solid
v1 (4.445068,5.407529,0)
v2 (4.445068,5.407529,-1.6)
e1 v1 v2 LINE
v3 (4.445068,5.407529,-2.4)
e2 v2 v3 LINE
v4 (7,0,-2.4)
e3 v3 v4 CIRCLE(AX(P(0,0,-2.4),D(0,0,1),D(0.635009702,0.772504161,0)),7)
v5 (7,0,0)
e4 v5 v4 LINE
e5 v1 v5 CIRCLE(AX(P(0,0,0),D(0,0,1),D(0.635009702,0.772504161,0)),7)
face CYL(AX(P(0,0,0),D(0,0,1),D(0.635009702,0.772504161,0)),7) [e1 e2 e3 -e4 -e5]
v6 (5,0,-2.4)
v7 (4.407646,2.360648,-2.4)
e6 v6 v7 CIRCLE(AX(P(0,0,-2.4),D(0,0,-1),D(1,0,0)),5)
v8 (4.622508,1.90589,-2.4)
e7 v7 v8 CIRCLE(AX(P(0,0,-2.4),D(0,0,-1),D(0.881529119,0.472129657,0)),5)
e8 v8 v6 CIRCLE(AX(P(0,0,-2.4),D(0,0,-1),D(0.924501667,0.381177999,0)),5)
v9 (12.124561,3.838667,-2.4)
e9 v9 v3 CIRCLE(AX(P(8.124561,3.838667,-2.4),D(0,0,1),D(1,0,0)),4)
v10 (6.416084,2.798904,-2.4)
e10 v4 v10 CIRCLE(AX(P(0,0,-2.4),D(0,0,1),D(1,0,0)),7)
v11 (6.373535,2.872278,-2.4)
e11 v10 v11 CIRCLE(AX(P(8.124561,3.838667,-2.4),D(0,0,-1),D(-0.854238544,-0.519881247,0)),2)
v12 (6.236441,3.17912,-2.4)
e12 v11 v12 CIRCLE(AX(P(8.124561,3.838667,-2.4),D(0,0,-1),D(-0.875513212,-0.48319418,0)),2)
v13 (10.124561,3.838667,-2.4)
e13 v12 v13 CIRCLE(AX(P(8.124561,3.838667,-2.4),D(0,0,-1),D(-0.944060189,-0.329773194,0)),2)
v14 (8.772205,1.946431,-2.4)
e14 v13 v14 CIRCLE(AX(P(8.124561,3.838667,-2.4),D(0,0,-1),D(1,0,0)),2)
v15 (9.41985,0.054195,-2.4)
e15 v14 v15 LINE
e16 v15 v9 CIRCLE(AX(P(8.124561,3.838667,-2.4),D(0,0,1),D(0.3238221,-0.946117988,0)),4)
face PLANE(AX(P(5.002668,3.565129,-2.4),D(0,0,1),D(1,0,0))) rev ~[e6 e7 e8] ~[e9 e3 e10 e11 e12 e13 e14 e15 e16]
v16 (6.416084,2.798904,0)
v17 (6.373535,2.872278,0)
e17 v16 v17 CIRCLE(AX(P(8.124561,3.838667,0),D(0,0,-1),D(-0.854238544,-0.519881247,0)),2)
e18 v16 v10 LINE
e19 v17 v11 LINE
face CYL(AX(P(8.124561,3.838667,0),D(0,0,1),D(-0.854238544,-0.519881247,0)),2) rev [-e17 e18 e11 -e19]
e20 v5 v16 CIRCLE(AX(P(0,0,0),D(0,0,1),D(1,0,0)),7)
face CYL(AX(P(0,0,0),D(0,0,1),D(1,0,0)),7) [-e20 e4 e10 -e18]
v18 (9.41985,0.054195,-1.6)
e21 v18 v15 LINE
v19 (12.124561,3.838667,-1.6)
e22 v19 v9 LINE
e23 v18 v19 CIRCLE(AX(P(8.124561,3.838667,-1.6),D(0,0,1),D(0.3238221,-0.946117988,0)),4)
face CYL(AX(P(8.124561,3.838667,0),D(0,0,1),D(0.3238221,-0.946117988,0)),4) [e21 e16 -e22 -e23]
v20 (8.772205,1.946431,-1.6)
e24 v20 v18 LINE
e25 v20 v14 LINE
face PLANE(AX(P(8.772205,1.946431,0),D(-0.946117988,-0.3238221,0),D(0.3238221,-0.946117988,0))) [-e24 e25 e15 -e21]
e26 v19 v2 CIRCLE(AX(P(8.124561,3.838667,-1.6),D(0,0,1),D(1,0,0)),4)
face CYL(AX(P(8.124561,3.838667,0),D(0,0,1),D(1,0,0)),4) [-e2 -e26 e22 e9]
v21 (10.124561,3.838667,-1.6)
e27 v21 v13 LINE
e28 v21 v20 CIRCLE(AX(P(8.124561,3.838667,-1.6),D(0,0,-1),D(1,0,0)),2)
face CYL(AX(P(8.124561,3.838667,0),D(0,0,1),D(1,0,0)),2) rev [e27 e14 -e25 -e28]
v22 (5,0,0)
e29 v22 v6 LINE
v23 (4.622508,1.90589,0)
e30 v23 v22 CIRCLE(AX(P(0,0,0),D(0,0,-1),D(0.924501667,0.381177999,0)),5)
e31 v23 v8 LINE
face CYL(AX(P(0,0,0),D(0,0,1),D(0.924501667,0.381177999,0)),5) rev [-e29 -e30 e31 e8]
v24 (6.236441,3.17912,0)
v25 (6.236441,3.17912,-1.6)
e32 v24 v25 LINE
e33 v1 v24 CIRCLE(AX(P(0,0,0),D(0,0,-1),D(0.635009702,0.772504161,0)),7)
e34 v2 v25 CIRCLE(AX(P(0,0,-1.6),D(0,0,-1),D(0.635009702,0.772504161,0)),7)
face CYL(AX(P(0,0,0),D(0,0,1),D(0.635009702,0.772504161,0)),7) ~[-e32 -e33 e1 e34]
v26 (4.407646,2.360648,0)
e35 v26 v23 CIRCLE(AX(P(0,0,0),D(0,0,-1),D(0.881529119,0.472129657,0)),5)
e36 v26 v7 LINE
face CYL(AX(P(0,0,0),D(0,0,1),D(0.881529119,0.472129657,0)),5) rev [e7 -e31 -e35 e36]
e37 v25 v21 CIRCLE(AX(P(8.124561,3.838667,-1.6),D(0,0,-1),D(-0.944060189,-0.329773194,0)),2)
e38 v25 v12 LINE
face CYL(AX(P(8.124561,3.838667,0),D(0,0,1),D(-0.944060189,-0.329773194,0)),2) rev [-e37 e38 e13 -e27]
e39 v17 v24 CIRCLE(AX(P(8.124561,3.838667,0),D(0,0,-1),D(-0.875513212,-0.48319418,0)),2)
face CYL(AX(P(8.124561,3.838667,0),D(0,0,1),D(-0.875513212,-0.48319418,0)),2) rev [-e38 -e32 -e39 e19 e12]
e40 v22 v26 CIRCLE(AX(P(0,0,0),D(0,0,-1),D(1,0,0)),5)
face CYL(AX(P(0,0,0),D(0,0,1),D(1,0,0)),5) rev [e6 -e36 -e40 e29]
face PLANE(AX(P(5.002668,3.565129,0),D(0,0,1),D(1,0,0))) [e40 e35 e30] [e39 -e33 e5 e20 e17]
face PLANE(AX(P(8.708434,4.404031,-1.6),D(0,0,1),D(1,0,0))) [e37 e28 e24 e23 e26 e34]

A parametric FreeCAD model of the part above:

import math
import FreeCAD as App
import Part
import Sketcher

V = App.Vector
Q = App.Units.Quantity

doc = App.newDocument("Part")
body = doc.addObject("PartDesign::Body", "Body")

sketch1 = doc.addObject("Sketcher::SketchObject", "Sketch")
body.addObject(sketch1)
sketch1.AttachmentSupport = (doc.XY_Plane, [""])
sketch1.MapMode = "FlatFace"
sketch1.addGeometry([
    Part.ArcOfCircle(Part.Circle(V(0, 0, 0), V(0, 0, 1), 7), math.radians(50.579296), math.radians(360)),
    Part.ArcOfCircle(Part.Circle(V(0, 0, 0), V(0, 0, 1), 7), math.radians(0), math.radians(23.568393)),
    Part.ArcOfCircle(Part.Circle(V(8.124561, 3.838667, 0), V(0, 0, 1), 2), math.radians(-151.105772), math.radians(-148.675714)),
    Part.ArcOfCircle(Part.Circle(V(8.124561, 3.838667, 0), V(0, 0, 1), 2), math.radians(-160.74499), math.radians(-151.105772)),
    Part.ArcOfCircle(Part.Circle(V(8.124561, 3.838667, 0), V(0, 0, 1), 2), math.radians(0), math.radians(199.25501)),
    Part.ArcOfCircle(Part.Circle(V(8.124561, 3.838667, 0), V(0, 0, 1), 2), math.radians(-71.105772), math.radians(0)),
    Part.LineSegment(V(8.772205, 1.946431, 0), V(9.41985, 0.054195, 0)),
    Part.ArcOfCircle(Part.Circle(V(8.124561, 3.838667, 0), V(0, 0, 1), 4), math.radians(-71.105772), math.radians(0)),
    Part.ArcOfCircle(Part.Circle(V(8.124561, 3.838667, 0), V(0, 0, 1), 4), math.radians(0), math.radians(156.907569)),
    Part.ArcOfCircle(Part.Circle(V(0, 0, 0), V(0, 0, 1), 5), math.radians(22.40667), math.radians(28.172626)),
    Part.ArcOfCircle(Part.Circle(V(0, 0, 0), V(0, 0, 1), 5), math.radians(0), math.radians(22.40667)),
    Part.ArcOfCircle(Part.Circle(V(0, 0, 0), V(0, 0, 1), 5), math.radians(28.172626), math.radians(360)),
], False)
sketch1.addConstraint([
    Sketcher.Constraint("Tangent", 0, 2, 1, 1),
    Sketcher.Constraint("Coincident", 1, 2, 2, 2),
    Sketcher.Constraint("Tangent", 2, 1, 3, 2),
    Sketcher.Constraint("Tangent", 3, 1, 4, 2),
    Sketcher.Constraint("Tangent", 4, 1, 5, 2),
    Sketcher.Constraint("Coincident", 5, 1, 6, 1),
    Sketcher.Constraint("Coincident", 6, 2, 7, 1),
    Sketcher.Constraint("Tangent", 7, 2, 8, 1),
    Sketcher.Constraint("Coincident", 8, 2, 0, 1),
    Sketcher.Constraint("Tangent", 9, 1, 10, 2),
    Sketcher.Constraint("Tangent", 10, 1, 11, 2),
    Sketcher.Constraint("Tangent", 11, 1, 9, 2),
    Sketcher.Constraint("Coincident", 0, 3, -1, 1),
    Sketcher.Constraint("Coincident", 9, 3, -1, 1),
    Sketcher.Constraint("Coincident", 4, 3, 2, 3),
    Sketcher.Constraint("Coincident", 7, 3, 2, 3),
    Sketcher.Constraint("Equal", 0, 1),
    Sketcher.Constraint("Equal", 4, 5),
    Sketcher.Constraint("Equal", 7, 8),
    Sketcher.Constraint("PointOnObject", 0, 2, -1),
    Sketcher.Constraint("PointOnObject", 10, 1, -1),
    Sketcher.Constraint("Horizontal", 8, 3, 4, 1),
    Sketcher.Constraint("Horizontal", 4, 1, 7, 2),
    Sketcher.Constraint("Radius", 0, Q("7 mm")),
    Sketcher.Constraint("Radius", 2, Q("2 mm")),
    Sketcher.Constraint("Radius", 7, Q("4 mm")),
    Sketcher.Constraint("Radius", 9, Q("5 mm")),
    Sketcher.Constraint("DistanceX", -1, 1, 2, 3, Q("8.124561 mm")),
    Sketcher.Constraint("DistanceY", -1, 1, 2, 1, Q("2.872278 mm")),
    Sketcher.Constraint("DistanceX", -1, 1, 3, 1, Q("6.236441 mm")),
    Sketcher.Constraint("DistanceY", -1, 1, 3, 1, Q("3.17912 mm")),
    Sketcher.Constraint("DistanceY", -1, 1, 5, 1, Q("1.946431 mm")),
    Sketcher.Constraint("DistanceX", -1, 1, 6, 2, Q("9.41985 mm")),
    Sketcher.Constraint("DistanceX", -1, 1, 9, 1, Q("4.622508 mm")),
    Sketcher.Constraint("DistanceY", -1, 1, 11, 1, Q("2.360648 mm")),
])
pad1 = doc.addObject("PartDesign::Pad", "Pad")
body.addObject(pad1)
pad1.Profile = sketch1
pad1.Length = 2.4
pad1.Reversed = True

sketch2 = doc.addObject("Sketcher::SketchObject", "Sketch001")
body.addObject(sketch2)
sketch2.AttachmentSupport = (doc.XY_Plane, [""])
sketch2.MapMode = "FlatFace"
sketch2.addGeometry([
    Part.ArcOfCircle(Part.Circle(V(8.124561, 3.838667, 0), V(0, 0, 1), 4), math.radians(0), math.radians(156.907569)),
    Part.ArcOfCircle(Part.Circle(V(0, 0, 0), V(0, 0, 1), 7), math.radians(27.010903), math.radians(50.579296)),
    Part.ArcOfCircle(Part.Circle(V(8.124561, 3.838667, 0), V(0, 0, 1), 2), math.radians(0), math.radians(199.25501)),
    Part.ArcOfCircle(Part.Circle(V(8.124561, 3.838667, 0), V(0, 0, 1), 2), math.radians(-71.105772), math.radians(0)),
    Part.LineSegment(V(8.772205, 1.946431, 0), V(9.41985, 0.054195, 0)),
    Part.ArcOfCircle(Part.Circle(V(8.124561, 3.838667, 0), V(0, 0, 1), 4), math.radians(-71.105772), math.radians(0)),
], False)
sketch2.addConstraint([
    Sketcher.Constraint("Coincident", 0, 2, 1, 2),
    Sketcher.Constraint("Coincident", 1, 1, 2, 2),
    Sketcher.Constraint("Tangent", 2, 1, 3, 2),
    Sketcher.Constraint("Coincident", 3, 1, 4, 1),
    Sketcher.Constraint("Coincident", 4, 2, 5, 1),
    Sketcher.Constraint("Tangent", 5, 2, 0, 1),
    Sketcher.Constraint("Coincident", 1, 3, -1, 1),
    Sketcher.Constraint("Coincident", 2, 3, 0, 3),
    Sketcher.Constraint("Equal", 2, 3),
    Sketcher.Constraint("Equal", 0, 5),
    Sketcher.Constraint("Horizontal", 5, 3, 2, 1),
    Sketcher.Constraint("Horizontal", 2, 1, 5, 2),
    Sketcher.Constraint("Radius", 0, Q("4 mm")),
    Sketcher.Constraint("Radius", 1, Q("7 mm")),
    Sketcher.Constraint("Radius", 2, Q("2 mm")),
    Sketcher.Constraint("DistanceX", -1, 1, 0, 3, Q("8.124561 mm")),
    Sketcher.Constraint("DistanceY", -1, 1, 0, 2, Q("5.407529 mm")),
    Sketcher.Constraint("DistanceY", -1, 1, 3, 1, Q("1.946431 mm")),
    Sketcher.Constraint("DistanceX", -1, 1, 4, 2, Q("9.41985 mm")),
])
pocket1 = doc.addObject("PartDesign::Pocket", "Pocket")
body.addObject(pocket1)
pocket1.Profile = sketch2
pocket1.Length = 1.6

doc.recompute()
